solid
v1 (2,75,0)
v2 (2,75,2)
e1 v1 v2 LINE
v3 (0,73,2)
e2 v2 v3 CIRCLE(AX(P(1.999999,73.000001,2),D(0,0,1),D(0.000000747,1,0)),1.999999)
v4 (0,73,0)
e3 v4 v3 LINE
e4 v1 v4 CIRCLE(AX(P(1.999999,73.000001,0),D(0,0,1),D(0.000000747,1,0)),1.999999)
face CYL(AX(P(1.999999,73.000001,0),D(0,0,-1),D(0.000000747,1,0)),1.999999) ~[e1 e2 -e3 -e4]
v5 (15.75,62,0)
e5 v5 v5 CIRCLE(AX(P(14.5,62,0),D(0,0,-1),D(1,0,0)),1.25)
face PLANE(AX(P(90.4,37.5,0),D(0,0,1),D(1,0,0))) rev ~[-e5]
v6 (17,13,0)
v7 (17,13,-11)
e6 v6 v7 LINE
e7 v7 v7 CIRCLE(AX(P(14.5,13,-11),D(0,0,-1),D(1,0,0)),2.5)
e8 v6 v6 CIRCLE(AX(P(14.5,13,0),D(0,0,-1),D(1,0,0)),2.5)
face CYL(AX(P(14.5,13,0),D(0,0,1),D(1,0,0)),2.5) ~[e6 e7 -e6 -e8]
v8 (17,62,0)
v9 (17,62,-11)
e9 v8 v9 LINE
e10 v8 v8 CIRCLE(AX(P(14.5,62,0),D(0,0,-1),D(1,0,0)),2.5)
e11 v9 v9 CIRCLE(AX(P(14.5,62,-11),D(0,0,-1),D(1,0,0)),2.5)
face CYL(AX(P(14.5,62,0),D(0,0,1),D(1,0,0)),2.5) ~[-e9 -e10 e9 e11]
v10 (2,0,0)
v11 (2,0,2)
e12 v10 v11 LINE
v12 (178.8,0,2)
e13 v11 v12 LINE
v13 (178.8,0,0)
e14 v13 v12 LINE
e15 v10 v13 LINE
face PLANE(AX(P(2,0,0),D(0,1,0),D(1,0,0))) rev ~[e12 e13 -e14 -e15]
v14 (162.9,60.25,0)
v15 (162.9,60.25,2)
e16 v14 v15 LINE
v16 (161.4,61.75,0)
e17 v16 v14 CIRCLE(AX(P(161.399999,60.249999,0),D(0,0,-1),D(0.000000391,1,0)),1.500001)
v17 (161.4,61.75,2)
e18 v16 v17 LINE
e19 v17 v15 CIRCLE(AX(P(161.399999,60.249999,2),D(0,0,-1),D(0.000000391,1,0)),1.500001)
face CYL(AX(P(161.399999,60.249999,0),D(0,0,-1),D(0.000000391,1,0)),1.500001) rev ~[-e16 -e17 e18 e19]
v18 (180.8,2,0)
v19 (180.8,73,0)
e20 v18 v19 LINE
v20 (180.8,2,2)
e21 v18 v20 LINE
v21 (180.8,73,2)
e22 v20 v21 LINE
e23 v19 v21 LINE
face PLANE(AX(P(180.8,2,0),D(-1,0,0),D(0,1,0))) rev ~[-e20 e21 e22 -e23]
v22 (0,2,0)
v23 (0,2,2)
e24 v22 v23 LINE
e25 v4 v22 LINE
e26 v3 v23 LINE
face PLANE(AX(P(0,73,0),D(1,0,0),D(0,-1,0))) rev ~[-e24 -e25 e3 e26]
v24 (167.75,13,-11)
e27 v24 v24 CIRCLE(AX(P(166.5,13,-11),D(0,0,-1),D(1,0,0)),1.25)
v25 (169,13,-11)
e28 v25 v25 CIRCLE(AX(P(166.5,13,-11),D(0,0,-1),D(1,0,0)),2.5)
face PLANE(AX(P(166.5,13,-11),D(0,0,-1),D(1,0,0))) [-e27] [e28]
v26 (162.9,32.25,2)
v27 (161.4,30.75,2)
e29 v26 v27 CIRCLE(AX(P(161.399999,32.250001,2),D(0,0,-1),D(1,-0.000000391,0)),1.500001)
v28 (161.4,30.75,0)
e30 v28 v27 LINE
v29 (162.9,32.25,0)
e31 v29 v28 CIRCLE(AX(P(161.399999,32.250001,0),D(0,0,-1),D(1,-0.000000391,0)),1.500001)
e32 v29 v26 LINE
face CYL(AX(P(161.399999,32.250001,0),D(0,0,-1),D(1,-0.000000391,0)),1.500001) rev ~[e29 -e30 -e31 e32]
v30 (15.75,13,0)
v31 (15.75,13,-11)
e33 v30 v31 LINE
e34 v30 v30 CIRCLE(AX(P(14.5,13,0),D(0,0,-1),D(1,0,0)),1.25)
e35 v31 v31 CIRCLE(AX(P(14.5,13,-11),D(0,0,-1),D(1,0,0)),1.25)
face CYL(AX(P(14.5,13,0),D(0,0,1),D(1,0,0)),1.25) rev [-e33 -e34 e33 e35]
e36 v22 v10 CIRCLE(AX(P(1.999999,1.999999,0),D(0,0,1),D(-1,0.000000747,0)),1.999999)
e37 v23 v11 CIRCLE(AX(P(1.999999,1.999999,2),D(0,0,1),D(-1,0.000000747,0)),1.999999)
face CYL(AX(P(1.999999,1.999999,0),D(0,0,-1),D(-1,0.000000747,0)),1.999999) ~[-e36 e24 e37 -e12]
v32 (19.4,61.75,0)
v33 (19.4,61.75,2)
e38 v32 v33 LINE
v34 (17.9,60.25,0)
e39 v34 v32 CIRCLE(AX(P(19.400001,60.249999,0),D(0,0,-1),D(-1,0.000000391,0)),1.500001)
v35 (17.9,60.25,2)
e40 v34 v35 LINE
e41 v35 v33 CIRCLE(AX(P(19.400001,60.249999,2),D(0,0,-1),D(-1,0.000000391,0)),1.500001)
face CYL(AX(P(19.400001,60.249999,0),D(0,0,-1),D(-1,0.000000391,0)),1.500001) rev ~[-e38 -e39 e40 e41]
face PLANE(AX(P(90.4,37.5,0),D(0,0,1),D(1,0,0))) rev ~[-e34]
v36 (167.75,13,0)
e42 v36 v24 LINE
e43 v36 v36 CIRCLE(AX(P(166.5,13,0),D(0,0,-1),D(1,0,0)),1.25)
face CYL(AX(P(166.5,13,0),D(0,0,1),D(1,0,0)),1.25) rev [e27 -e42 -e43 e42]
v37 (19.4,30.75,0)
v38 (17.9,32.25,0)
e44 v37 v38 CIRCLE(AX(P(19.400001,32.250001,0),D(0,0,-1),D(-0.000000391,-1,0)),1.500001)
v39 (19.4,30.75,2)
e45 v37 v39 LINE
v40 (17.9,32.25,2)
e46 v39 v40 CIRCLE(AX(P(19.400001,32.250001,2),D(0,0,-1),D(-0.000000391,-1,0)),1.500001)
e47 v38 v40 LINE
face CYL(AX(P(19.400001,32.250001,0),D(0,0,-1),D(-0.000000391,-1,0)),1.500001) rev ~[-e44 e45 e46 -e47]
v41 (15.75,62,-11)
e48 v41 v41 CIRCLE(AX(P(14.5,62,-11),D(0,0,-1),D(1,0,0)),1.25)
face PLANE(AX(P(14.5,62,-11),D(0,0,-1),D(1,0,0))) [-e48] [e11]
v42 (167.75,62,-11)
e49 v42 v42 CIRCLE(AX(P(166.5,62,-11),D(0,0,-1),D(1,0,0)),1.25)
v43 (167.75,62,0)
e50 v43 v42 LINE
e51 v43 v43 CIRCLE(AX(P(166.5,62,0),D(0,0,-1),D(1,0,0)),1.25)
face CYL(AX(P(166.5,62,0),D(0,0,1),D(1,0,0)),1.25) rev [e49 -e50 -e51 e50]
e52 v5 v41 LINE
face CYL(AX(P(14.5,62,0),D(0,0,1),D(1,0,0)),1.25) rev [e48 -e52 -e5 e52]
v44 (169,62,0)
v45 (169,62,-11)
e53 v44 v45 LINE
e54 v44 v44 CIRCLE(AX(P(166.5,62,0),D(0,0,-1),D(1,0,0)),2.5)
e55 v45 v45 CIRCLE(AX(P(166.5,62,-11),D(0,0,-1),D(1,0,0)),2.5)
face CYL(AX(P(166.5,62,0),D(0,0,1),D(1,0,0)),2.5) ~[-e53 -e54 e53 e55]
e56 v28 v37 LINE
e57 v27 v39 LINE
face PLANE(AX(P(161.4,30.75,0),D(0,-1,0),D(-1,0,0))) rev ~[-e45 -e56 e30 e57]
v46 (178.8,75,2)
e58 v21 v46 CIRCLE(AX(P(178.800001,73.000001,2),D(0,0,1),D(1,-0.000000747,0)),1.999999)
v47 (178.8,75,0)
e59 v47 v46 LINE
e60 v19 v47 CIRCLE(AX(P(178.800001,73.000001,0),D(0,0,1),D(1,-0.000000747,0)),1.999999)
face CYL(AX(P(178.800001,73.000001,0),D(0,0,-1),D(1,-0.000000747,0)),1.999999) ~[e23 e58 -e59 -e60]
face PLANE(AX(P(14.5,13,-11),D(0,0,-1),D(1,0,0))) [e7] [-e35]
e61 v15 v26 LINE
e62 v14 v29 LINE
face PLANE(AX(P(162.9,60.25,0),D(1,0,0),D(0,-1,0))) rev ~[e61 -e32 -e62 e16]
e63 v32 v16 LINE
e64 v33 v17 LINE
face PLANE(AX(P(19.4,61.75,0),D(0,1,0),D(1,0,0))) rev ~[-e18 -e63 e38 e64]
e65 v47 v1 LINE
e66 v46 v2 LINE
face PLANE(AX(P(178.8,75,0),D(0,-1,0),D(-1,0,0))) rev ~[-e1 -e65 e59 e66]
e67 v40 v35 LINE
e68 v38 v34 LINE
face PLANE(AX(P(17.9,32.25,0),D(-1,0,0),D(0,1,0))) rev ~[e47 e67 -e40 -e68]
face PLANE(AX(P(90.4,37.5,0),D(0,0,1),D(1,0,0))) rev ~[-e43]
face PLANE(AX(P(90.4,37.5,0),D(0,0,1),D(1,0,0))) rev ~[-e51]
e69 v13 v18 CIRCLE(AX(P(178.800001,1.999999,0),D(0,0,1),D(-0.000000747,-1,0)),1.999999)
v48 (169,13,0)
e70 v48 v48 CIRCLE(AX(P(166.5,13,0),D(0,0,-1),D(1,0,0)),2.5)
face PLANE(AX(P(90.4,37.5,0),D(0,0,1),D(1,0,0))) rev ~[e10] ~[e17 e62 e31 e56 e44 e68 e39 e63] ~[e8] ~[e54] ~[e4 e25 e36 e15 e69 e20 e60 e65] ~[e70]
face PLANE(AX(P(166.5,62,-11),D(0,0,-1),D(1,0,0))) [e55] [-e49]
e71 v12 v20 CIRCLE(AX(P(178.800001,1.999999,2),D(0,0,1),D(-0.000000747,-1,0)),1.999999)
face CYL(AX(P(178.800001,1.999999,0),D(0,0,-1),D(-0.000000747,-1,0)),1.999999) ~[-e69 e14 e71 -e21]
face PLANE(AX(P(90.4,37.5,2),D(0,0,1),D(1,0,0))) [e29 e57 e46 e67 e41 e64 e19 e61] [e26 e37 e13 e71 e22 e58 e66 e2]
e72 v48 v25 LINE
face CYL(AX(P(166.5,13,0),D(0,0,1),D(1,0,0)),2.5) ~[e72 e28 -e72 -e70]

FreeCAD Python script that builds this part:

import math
import FreeCAD as App
import Part
import Sketcher

V = App.Vector

doc = App.newDocument("Part")
body = doc.addObject("PartDesign::Body", "Body")

# Sketch on XY plane
sketch1 = body.newObject("Sketcher::SketchObject", "Sketch")
sketch1.AttachmentSupport = (doc.getObject("XY_Plane"), [""])
sketch1.MapMode = "FlatFace"
sketch1.addGeometry([
    Part.ArcOfCircle(Part.Circle(V(1.999999, 1.999999, 0), V(0, 0, 1), 1.999999), math.radians(179.999957), math.radians(270.000043)),  # 0
    Part.LineSegment(V(2, 0, 0), V(178.8, 0, 0)),  # 1
    Part.ArcOfCircle(Part.Circle(V(178.800001, 1.999999, 0), V(0, 0, 1), 1.999999), math.radians(-90.000043), math.radians(0.000043)),  # 2
    Part.LineSegment(V(180.8, 2, 0), V(180.8, 73, 0)),  # 3
    Part.ArcOfCircle(Part.Circle(V(178.800001, 73.000001, 0), V(0, 0, 1), 1.999999), math.radians(-0.000043), math.radians(90.000043)),  # 4
    Part.LineSegment(V(178.8, 75, 0), V(2, 75, 0)),  # 5
    Part.ArcOfCircle(Part.Circle(V(1.999999, 73.000001, 0), V(0, 0, 1), 1.999999), math.radians(89.999957), math.radians(180.000043)),  # 6
    Part.LineSegment(V(0, 73, 0), V(0, 2, 0)),  # 7
    Part.LineSegment(V(17.9, 32.25, 0), V(17.9, 60.25, 0)),  # 8
    Part.ArcOfCircle(Part.Circle(V(19.400001, 60.249999, 0), V(0, 0, 1), 1.500001), math.radians(90.000022), math.radians(179.999978)),  # 9
    Part.LineSegment(V(19.4, 61.75, 0), V(161.4, 61.75, 0)),  # 10
    Part.ArcOfCircle(Part.Circle(V(161.399999, 60.249999, 0), V(0, 0, 1), 1.500001), math.radians(0.000022), math.radians(89.999978)),  # 11
    Part.LineSegment(V(162.9, 60.25, 0), V(162.9, 32.25, 0)),  # 12
    Part.ArcOfCircle(Part.Circle(V(161.399999, 32.250001, 0), V(0, 0, 1), 1.500001), math.radians(-89.999978), math.radians(-0.000022)),  # 13
    Part.LineSegment(V(161.4, 30.75, 0), V(19.4, 30.75, 0)),  # 14
    Part.ArcOfCircle(Part.Circle(V(19.400001, 32.250001, 0), V(0, 0, 1), 1.500001), math.radians(-179.999978), math.radians(-90.000022)),  # 15
], False)
sketch1.addConstraint([
    Sketcher.Constraint("Tangent", 0, 2, 1, 1),
    Sketcher.Constraint("Tangent", 1, 2, 2, 1),
    Sketcher.Constraint("Tangent", 2, 2, 3, 1),
    Sketcher.Constraint("Tangent", 3, 2, 4, 1),
    Sketcher.Constraint("Tangent", 4, 2, 5, 1),
    Sketcher.Constraint("Tangent", 5, 2, 6, 1),
    Sketcher.Constraint("Tangent", 6, 2, 7, 1),
    Sketcher.Constraint("Tangent", 7, 2, 0, 1),
    Sketcher.Constraint("Tangent", 8, 2, 9, 2),
    Sketcher.Constraint("Tangent", 9, 1, 10, 1),
    Sketcher.Constraint("Tangent", 10, 2, 11, 2),
    Sketcher.Constraint("Tangent", 11, 1, 12, 1),
    Sketcher.Constraint("Tangent", 12, 2, 13, 2),
    Sketcher.Constraint("Tangent", 13, 1, 14, 1),
    Sketcher.Constraint("Tangent", 14, 2, 15, 2),
    Sketcher.Constraint("Tangent", 15, 1, 8, 1),
    Sketcher.Constraint("Horizontal", 1),
    Sketcher.Constraint("Vertical", 3),
    Sketcher.Constraint("Horizontal", 5),
    Sketcher.Constraint("Vertical", 7),
    Sketcher.Constraint("Vertical", 8),
    Sketcher.Constraint("Horizontal", 10),
    Sketcher.Constraint("Vertical", 12),
    Sketcher.Constraint("Horizontal", 14),
    Sketcher.Constraint("Equal", 0, 2),
    Sketcher.Constraint("Equal", 2, 4),
    Sketcher.Constraint("Equal", 4, 6),
    Sketcher.Constraint("Equal", 9, 11),
    Sketcher.Constraint("Equal", 11, 13),
    Sketcher.Constraint("Equal", 13, 15),
    Sketcher.Constraint("PointOnObject", 0, 2, -1),
    Sketcher.Constraint("PointOnObject", 6, 2, -2),
    Sketcher.Constraint("Radius", 0, 1.999999),
    Sketcher.Constraint("Radius", 9, 1.500001),
    Sketcher.Constraint("DistanceX", 10, 1, 10, 2, 142.0),
    Sketcher.Constraint("DistanceY", 3, 1, 3, 2, 71.0),
    Sketcher.Constraint("DistanceY", 8, 1, 8, 2, 28.0),
    Sketcher.Constraint("DistanceX", 1, 1, 1, 2, 176.8),
    Sketcher.Constraint("DistanceX", -1, 1, 9, 3, 19.400001),
    Sketcher.Constraint("DistanceY", -1, 1, 9, 3, 60.249999),
])
pad1 = body.newObject("PartDesign::Pad", "Pad")
pad1.Profile = sketch1
pad1.Length = 2

# Sketch on XY plane
sketch2 = body.newObject("Sketcher::SketchObject", "Sketch001")
sketch2.AttachmentSupport = (doc.getObject("XY_Plane"), [""])
sketch2.MapMode = "FlatFace"
sketch2.addGeometry([
    Part.Circle(V(14.5, 13, 0), V(0, 0, 1), 2.5),  # 0
    Part.Circle(V(14.5, 13, 0), V(0, 0, 1), 1.25),  # 1
    Part.Circle(V(14.5, 62, 0), V(0, 0, 1), 2.5),  # 2
    Part.Circle(V(14.5, 62, 0), V(0, 0, 1), 1.25),  # 3
    Part.Circle(V(166.5, 62, 0), V(0, 0, 1), 2.5),  # 4
    Part.Circle(V(166.5, 62, 0), V(0, 0, 1), 1.25),  # 5
    Part.Circle(V(166.5, 13, 0), V(0, 0, 1), 2.5),  # 6
    Part.Circle(V(166.5, 13, 0), V(0, 0, 1), 1.25),  # 7
], False)
sketch2.addConstraint([
    Sketcher.Constraint("Coincident", 1, 3, 0, 3),
    Sketcher.Constraint("Coincident", 3, 3, 2, 3),
    Sketcher.Constraint("Coincident", 5, 3, 4, 3),
    Sketcher.Constraint("Coincident", 7, 3, 6, 3),
    Sketcher.Constraint("Equal", 0, 2),
    Sketcher.Constraint("Equal", 1, 3),
    Sketcher.Constraint("Equal", 2, 4),
    Sketcher.Constraint("Equal", 3, 5),
    Sketcher.Constraint("Equal", 4, 6),
    Sketcher.Constraint("Equal", 5, 7),
    Sketcher.Constraint("Horizontal", 3, 3, 4, 3),
    Sketcher.Constraint("Horizontal", 1, 3, 6, 3),
    Sketcher.Constraint("Vertical", 1, 3, 2, 3),
    Sketcher.Constraint("Vertical", 5, 3, 6, 3),
    Sketcher.Constraint("Diameter", 0, 5.0),
    Sketcher.Constraint("Diameter", 1, 2.5),
    Sketcher.Constraint("DistanceY", -1, 1, 0, 3, 13.0),
    Sketcher.Constraint("DistanceY", -1, 1, 2, 3, 62.0),
    Sketcher.Constraint("DistanceX", 2, 3, 4, 3, 152.0),
    Sketcher.Constraint("DistanceX", -1, 1, 0, 3, 14.5),
])
pad2 = body.newObject("PartDesign::Pad", "Pad001")
pad2.Profile = sketch2
pad2.Length = 11
pad2.Reversed = True

doc.recompute()
